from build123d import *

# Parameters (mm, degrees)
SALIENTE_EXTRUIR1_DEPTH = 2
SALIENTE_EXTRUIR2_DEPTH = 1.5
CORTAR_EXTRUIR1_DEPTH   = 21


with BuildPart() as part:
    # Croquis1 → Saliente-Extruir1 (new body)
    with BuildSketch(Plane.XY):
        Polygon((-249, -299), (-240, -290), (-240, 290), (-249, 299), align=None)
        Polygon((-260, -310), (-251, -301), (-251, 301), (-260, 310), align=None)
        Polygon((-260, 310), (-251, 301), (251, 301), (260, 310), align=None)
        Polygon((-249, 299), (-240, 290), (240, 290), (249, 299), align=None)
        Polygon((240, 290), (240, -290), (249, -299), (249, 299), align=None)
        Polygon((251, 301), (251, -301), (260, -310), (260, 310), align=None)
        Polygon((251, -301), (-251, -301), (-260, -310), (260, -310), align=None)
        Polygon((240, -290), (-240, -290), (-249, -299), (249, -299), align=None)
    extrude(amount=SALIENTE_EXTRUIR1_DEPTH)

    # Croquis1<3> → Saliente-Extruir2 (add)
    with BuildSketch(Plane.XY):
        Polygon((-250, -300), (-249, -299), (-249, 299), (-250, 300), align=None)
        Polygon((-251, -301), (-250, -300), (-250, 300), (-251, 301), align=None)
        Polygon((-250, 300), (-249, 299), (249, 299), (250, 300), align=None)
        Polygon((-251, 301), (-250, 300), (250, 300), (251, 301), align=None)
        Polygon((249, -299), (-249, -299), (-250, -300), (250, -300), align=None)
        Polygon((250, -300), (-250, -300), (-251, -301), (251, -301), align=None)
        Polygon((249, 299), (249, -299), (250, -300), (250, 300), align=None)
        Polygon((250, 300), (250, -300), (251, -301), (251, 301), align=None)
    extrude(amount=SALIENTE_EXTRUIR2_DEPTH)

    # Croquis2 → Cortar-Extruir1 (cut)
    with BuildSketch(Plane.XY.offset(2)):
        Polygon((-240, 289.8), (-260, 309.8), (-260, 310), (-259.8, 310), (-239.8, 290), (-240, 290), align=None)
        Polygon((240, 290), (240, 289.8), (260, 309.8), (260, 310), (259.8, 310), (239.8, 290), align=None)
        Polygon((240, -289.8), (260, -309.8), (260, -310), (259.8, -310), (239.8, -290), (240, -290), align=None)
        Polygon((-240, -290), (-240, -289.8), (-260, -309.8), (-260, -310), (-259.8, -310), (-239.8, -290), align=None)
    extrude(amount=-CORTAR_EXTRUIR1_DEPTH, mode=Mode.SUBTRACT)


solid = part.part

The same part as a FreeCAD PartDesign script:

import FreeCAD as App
import Part
import Sketcher

doc = App.newDocument("Part")
body = doc.addObject("PartDesign::Body", "Body")
body.AllowCompound = True

sketch1 = body.newObject("Sketcher::SketchObject", "Sketch")
sketch1.AttachmentSupport = (doc.getObject("XY_Plane"), [""])
sketch1.MapMode = "FlatFace"
sketch1.addGeometry(Part.LineSegment(App.Vector(249, -299, 0), App.Vector(249, 299, 0)), False)
sketch1.addGeometry(Part.LineSegment(App.Vector(249, 299, 0), App.Vector(-249, 299, 0)), False)
sketch1.addGeometry(Part.LineSegment(App.Vector(-249, 299, 0), App.Vector(-249, -299, 0)), False)
sketch1.addGeometry(Part.LineSegment(App.Vector(-249, -299, 0), App.Vector(249, -299, 0)), False)
sketch1.addGeometry(Part.LineSegment(App.Vector(-240, -290, 0), App.Vector(-240, 290, 0)), False)
sketch1.addGeometry(Part.LineSegment(App.Vector(-240, 290, 0), App.Vector(240, 290, 0)), False)
sketch1.addGeometry(Part.LineSegment(App.Vector(240, 290, 0), App.Vector(240, -290, 0)), False)
sketch1.addGeometry(Part.LineSegment(App.Vector(240, -290, 0), App.Vector(-240, -290, 0)), False)
sketch1.addGeometry(Part.LineSegment(App.Vector(260, -310, 0), App.Vector(260, 310, 0)), False)
sketch1.addGeometry(Part.LineSegment(App.Vector(260, 310, 0), App.Vector(-260, 310, 0)), False)
sketch1.addGeometry(Part.LineSegment(App.Vector(-260, 310, 0), App.Vector(-260, -310, 0)), False)
sketch1.addGeometry(Part.LineSegment(App.Vector(-260, -310, 0), App.Vector(260, -310, 0)), False)
sketch1.addGeometry(Part.LineSegment(App.Vector(-251, -301, 0), App.Vector(-251, 301, 0)), False)
sketch1.addGeometry(Part.LineSegment(App.Vector(-251, 301, 0), App.Vector(251, 301, 0)), False)
sketch1.addGeometry(Part.LineSegment(App.Vector(251, 301, 0), App.Vector(251, -301, 0)), False)
sketch1.addGeometry(Part.LineSegment(App.Vector(251, -301, 0), App.Vector(-251, -301, 0)), False)
sketch1.addConstraint(Sketcher.Constraint("Coincident", 0, 2, 1, 1))
sketch1.addConstraint(Sketcher.Constraint("Coincident", 1, 2, 2, 1))
sketch1.addConstraint(Sketcher.Constraint("Coincident", 2, 2, 3, 1))
sketch1.addConstraint(Sketcher.Constraint("Coincident", 3, 2, 0, 1))
sketch1.addConstraint(Sketcher.Constraint("Coincident", 4, 2, 5, 1))
sketch1.addConstraint(Sketcher.Constraint("Coincident", 5, 2, 6, 1))
sketch1.addConstraint(Sketcher.Constraint("Coincident", 6, 2, 7, 1))
sketch1.addConstraint(Sketcher.Constraint("Coincident", 7, 2, 4, 1))
sketch1.addConstraint(Sketcher.Constraint("Coincident", 8, 2, 9, 1))
sketch1.addConstraint(Sketcher.Constraint("Coincident", 9, 2, 10, 1))
sketch1.addConstraint(Sketcher.Constraint("Coincident", 10, 2, 11, 1))
sketch1.addConstraint(Sketcher.Constraint("Coincident", 11, 2, 8, 1))
sketch1.addConstraint(Sketcher.Constraint("Coincident", 12, 2, 13, 1))
sketch1.addConstraint(Sketcher.Constraint("Coincident", 13, 2, 14, 1))
sketch1.addConstraint(Sketcher.Constraint("Coincident", 14, 2, 15, 1))
sketch1.addConstraint(Sketcher.Constraint("Coincident", 15, 2, 12, 1))
sketch1.addConstraint(Sketcher.Constraint("Vertical", 0))
sketch1.addConstraint(Sketcher.Constraint("Horizontal", 1))
sketch1.addConstraint(Sketcher.Constraint("Vertical", 2))
sketch1.addConstraint(Sketcher.Constraint("Horizontal", 3))
sketch1.addConstraint(Sketcher.Constraint("Vertical", 4))
sketch1.addConstraint(Sketcher.Constraint("Horizontal", 5))
sketch1.addConstraint(Sketcher.Constraint("Vertical", 6))
sketch1.addConstraint(Sketcher.Constraint("Horizontal", 7))
sketch1.addConstraint(Sketcher.Constraint("Vertical", 8))
sketch1.addConstraint(Sketcher.Constraint("Horizontal", 9))
sketch1.addConstraint(Sketcher.Constraint("Vertical", 10))
sketch1.addConstraint(Sketcher.Constraint("Horizontal", 11))
sketch1.addConstraint(Sketcher.Constraint("Vertical", 12))
sketch1.addConstraint(Sketcher.Constraint("Horizontal", 13))
sketch1.addConstraint(Sketcher.Constraint("Vertical", 14))
sketch1.addConstraint(Sketcher.Constraint("Horizontal", 15))
sketch1.addConstraint(Sketcher.Constraint("Symmetric", 0, 2, 2, 2, -1, 1))
sketch1.addConstraint(Sketcher.Constraint("Symmetric", 4, 2, 6, 2, -1, 1))
sketch1.addConstraint(Sketcher.Constraint("Symmetric", 8, 2, 10, 2, -1, 1))
sketch1.addConstraint(Sketcher.Constraint("Symmetric", 12, 2, 14, 2, -1, 1))
sketch1.addConstraint(Sketcher.Constraint("DistanceX", 1, 2, 1, 1, 498.0))
sketch1.addConstraint(Sketcher.Constraint("DistanceX", 5, 1, 5, 2, 480.0))
sketch1.addConstraint(Sketcher.Constraint("DistanceX", 9, 2, 9, 1, 520.0))
sketch1.addConstraint(Sketcher.Constraint("DistanceX", 13, 1, 13, 2, 502.0))
sketch1.addConstraint(Sketcher.Constraint("DistanceY", 0, 1, 0, 2, 598.0))
sketch1.addConstraint(Sketcher.Constraint("DistanceY", 4, 1, 4, 2, 580.0))
sketch1.addConstraint(Sketcher.Constraint("DistanceY", 8, 1, 8, 2, 620.0))
sketch1.addConstraint(Sketcher.Constraint("DistanceY", 12, 1, 12, 2, 602.0))
pad1 = body.newObject("PartDesign::Pad", "Pad")
pad1.Profile = sketch1
pad1.Length = 2

sketch2 = body.newObject("Sketcher::SketchObject", "Sketch001")
sketch2.AttachmentSupport = (doc.getObject("XY_Plane"), [""])
sketch2.MapMode = "FlatFace"
sketch2.addGeometry(Part.LineSegment(App.Vector(251, 301, 0), App.Vector(-251, 301, 0)), False)
sketch2.addGeometry(Part.LineSegment(App.Vector(-251, 301, 0), App.Vector(-251, -301, 0)), False)
sketch2.addGeometry(Part.LineSegment(App.Vector(-251, -301, 0), App.Vector(251, -301, 0)), False)
sketch2.addGeometry(Part.LineSegment(App.Vector(251, -301, 0), App.Vector(251, 301, 0)), False)
sketch2.addGeometry(Part.LineSegment(App.Vector(-249, -299, 0), App.Vector(-249, 299, 0)), False)
sketch2.addGeometry(Part.LineSegment(App.Vector(-249, 299, 0), App.Vector(249, 299, 0)), False)
sketch2.addGeometry(Part.LineSegment(App.Vector(249, 299, 0), App.Vector(249, -299, 0)), False)
sketch2.addGeometry(Part.LineSegment(App.Vector(249, -299, 0), App.Vector(-249, -299, 0)), False)
sketch2.addConstraint(Sketcher.Constraint("Coincident", 0, 2, 1, 1))
sketch2.addConstraint(Sketcher.Constraint("Coincident", 1, 2, 2, 1))
sketch2.addConstraint(Sketcher.Constraint("Coincident", 2, 2, 3, 1))
sketch2.addConstraint(Sketcher.Constraint("Coincident", 3, 2, 0, 1))
sketch2.addConstraint(Sketcher.Constraint("Coincident", 4, 2, 5, 1))
sketch2.addConstraint(Sketcher.Constraint("Coincident", 5, 2, 6, 1))
sketch2.addConstraint(Sketcher.Constraint("Coincident", 6, 2, 7, 1))
sketch2.addConstraint(Sketcher.Constraint("Coincident", 7, 2, 4, 1))
sketch2.addConstraint(Sketcher.Constraint("Horizontal", 0))
sketch2.addConstraint(Sketcher.Constraint("Vertical", 1))
sketch2.addConstraint(Sketcher.Constraint("Horizontal", 2))
sketch2.addConstraint(Sketcher.Constraint("Vertical", 3))
sketch2.addConstraint(Sketcher.Constraint("Vertical", 4))
sketch2.addConstraint(Sketcher.Constraint("Horizontal", 5))
sketch2.addConstraint(Sketcher.Constraint("Vertical", 6))
sketch2.addConstraint(Sketcher.Constraint("Horizontal", 7))
sketch2.addConstraint(Sketcher.Constraint("Symmetric", 0, 2, 2, 2, -1, 1))
sketch2.addConstraint(Sketcher.Constraint("Symmetric", 4, 2, 6, 2, -1, 1))
sketch2.addConstraint(Sketcher.Constraint("DistanceX", 0, 2, 0, 1, 502.0))
sketch2.addConstraint(Sketcher.Constraint("DistanceX", 5, 1, 5, 2, 498.0))
sketch2.addConstraint(Sketcher.Constraint("DistanceY", 1, 2, 1, 1, 602.0))
sketch2.addConstraint(Sketcher.Constraint("DistanceY", 4, 1, 4, 2, 598.0))
pad2 = body.newObject("PartDesign::Pad", "Pad001")
pad2.Profile = sketch2
pad2.Length = 1.5

sketch3 = body.newObject("Sketcher::SketchObject", "Sketch002")
sketch3.AttachmentSupport = (doc.getObject("XY_Plane"), [""])
sketch3.MapMode = "FlatFace"
sketch3.AttachmentOffset = App.Placement(App.Vector(0, 0, 2), App.Rotation())
sketch3.addGeometry(Part.LineSegment(App.Vector(-260, 309.8, 0), App.Vector(-240, 289.8, 0)), False)
sketch3.addGeometry(Part.LineSegment(App.Vector(-240, 289.8, 0), App.Vector(-240, 290, 0)), False)
sketch3.addGeometry(Part.LineSegment(App.Vector(-240, 290, 0), App.Vector(-239.8, 290, 0)), False)
sketch3.addGeometry(Part.LineSegment(App.Vector(-239.8, 290, 0), App.Vector(-259.8, 310, 0)), False)
sketch3.addGeometry(Part.LineSegment(App.Vector(-259.8, 310, 0), App.Vector(-260, 310, 0)), False)
sketch3.addGeometry(Part.LineSegment(App.Vector(-260, 310, 0), App.Vector(-260, 309.8, 0)), False)
sketch3.addGeometry(Part.LineSegment(App.Vector(240, 290, 0), App.Vector(240, 289.8, 0)), False)
sketch3.addGeometry(Part.LineSegment(App.Vector(240, 289.8, 0), App.Vector(260, 309.8, 0)), False)
sketch3.addGeometry(Part.LineSegment(App.Vector(260, 309.8, 0), App.Vector(260, 310, 0)), False)
sketch3.addGeometry(Part.LineSegment(App.Vector(260, 310, 0), App.Vector(259.8, 310, 0)), False)
sketch3.addGeometry(Part.LineSegment(App.Vector(259.8, 310, 0), App.Vector(239.8, 290, 0)), False)
sketch3.addGeometry(Part.LineSegment(App.Vector(239.8, 290, 0), App.Vector(240, 290, 0)), False)
sketch3.addGeometry(Part.LineSegment(App.Vector(260, -309.8, 0), App.Vector(240, -289.8, 0)), False)
sketch3.addGeometry(Part.LineSegment(App.Vector(240, -289.8, 0), App.Vector(240, -290, 0)), False)
sketch3.addGeometry(Part.LineSegment(App.Vector(240, -290, 0), App.Vector(239.8, -290, 0)), False)
sketch3.addGeometry(Part.LineSegment(App.Vector(239.8, -290, 0), App.Vector(259.8, -310, 0)), False)
sketch3.addGeometry(Part.LineSegment(App.Vector(259.8, -310, 0), App.Vector(260, -310, 0)), False)
sketch3.addGeometry(Part.LineSegment(App.Vector(260, -310, 0), App.Vector(260, -309.8, 0)), False)
sketch3.addGeometry(Part.LineSegment(App.Vector(-240, -290, 0), App.Vector(-240, -289.8, 0)), False)
sketch3.addGeometry(Part.LineSegment(App.Vector(-240, -289.8, 0), App.Vector(-260, -309.8, 0)), False)
sketch3.addGeometry(Part.LineSegment(App.Vector(-260, -309.8, 0), App.Vector(-260, -310, 0)), False)
sketch3.addGeometry(Part.LineSegment(App.Vector(-260, -310, 0), App.Vector(-259.8, -310, 0)), False)
sketch3.addGeometry(Part.LineSegment(App.Vector(-259.8, -310, 0), App.Vector(-239.8, -290, 0)), False)
sketch3.addGeometry(Part.LineSegment(App.Vector(-239.8, -290, 0), App.Vector(-240, -290, 0)), False)
sketch3.addConstraint(Sketcher.Constraint("Coincident", 0, 2, 1, 1))
sketch3.addConstraint(Sketcher.Constraint("Coincident", 1, 2, 2, 1))
sketch3.addConstraint(Sketcher.Constraint("Coincident", 2, 2, 3, 1))
sketch3.addConstraint(Sketcher.Constraint("Coincident", 3, 2, 4, 1))
sketch3.addConstraint(Sketcher.Constraint("Coincident", 4, 2, 5, 1))
sketch3.addConstraint(Sketcher.Constraint("Coincident", 5, 2, 0, 1))
sketch3.addConstraint(Sketcher.Constraint("Coincident", 6, 2, 7, 1))
sketch3.addConstraint(Sketcher.Constraint("Coincident", 7, 2, 8, 1))
sketch3.addConstraint(Sketcher.Constraint("Coincident", 8, 2, 9, 1))
sketch3.addConstraint(Sketcher.Constraint("Coincident", 9, 2, 10, 1))
sketch3.addConstraint(Sketcher.Constraint("Coincident", 10, 2, 11, 1))
sketch3.addConstraint(Sketcher.Constraint("Coincident", 11, 2, 6, 1))
sketch3.addConstraint(Sketcher.Constraint("Coincident", 12, 2, 13, 1))
sketch3.addConstraint(Sketcher.Constraint("Coincident", 13, 2, 14, 1))
sketch3.addConstraint(Sketcher.Constraint("Coincident", 14, 2, 15, 1))
sketch3.addConstraint(Sketcher.Constraint("Coincident", 15, 2, 16, 1))
sketch3.addConstraint(Sketcher.Constraint("Coincident", 16, 2, 17, 1))
sketch3.addConstraint(Sketcher.Constraint("Coincident", 17, 2, 12, 1))
sketch3.addConstraint(Sketcher.Constraint("Coincident", 18, 2, 19, 1))
sketch3.addConstraint(Sketcher.Constraint("Coincident", 19, 2, 20, 1))
sketch3.addConstraint(Sketcher.Constraint("Coincident", 20, 2, 21, 1))
sketch3.addConstraint(Sketcher.Constraint("Coincident", 21, 2, 22, 1))
sketch3.addConstraint(Sketcher.Constraint("Coincident", 22, 2, 23, 1))
sketch3.addConstraint(Sketcher.Constraint("Coincident", 23, 2, 18, 1))
sketch3.addConstraint(Sketcher.Constraint("Vertical", 1))
sketch3.addConstraint(Sketcher.Constraint("Horizontal", 2))
sketch3.addConstraint(Sketcher.Constraint("Horizontal", 4))
sketch3.addConstraint(Sketcher.Constraint("Vertical", 5))
sketch3.addConstraint(Sketcher.Constraint("Vertical", 6))
sketch3.addConstraint(Sketcher.Constraint("Vertical", 8))
sketch3.addConstraint(Sketcher.Constraint("Horizontal", 9))
sketch3.addConstraint(Sketcher.Constraint("Horizontal", 11))
sketch3.addConstraint(Sketcher.Constraint("Vertical", 13))
sketch3.addConstraint(Sketcher.Constraint("Horizontal", 14))
sketch3.addConstraint(Sketcher.Constraint("Horizontal", 16))
sketch3.addConstraint(Sketcher.Constraint("Vertical", 17))
sketch3.addConstraint(Sketcher.Constraint("Vertical", 18))
sketch3.addConstraint(Sketcher.Constraint("Vertical", 20))
sketch3.addConstraint(Sketcher.Constraint("Horizontal", 21))
sketch3.addConstraint(Sketcher.Constraint("Horizontal", 23))
sketch3.addConstraint(Sketcher.Constraint("Symmetric", 0, 2, 12, 2, -1, 1))
sketch3.addConstraint(Sketcher.Constraint("Symmetric", 2, 2, 14, 2, -1, 1))
sketch3.addConstraint(Sketcher.Constraint("Symmetric", 3, 2, 15, 2, -1, 1))
sketch3.addConstraint(Sketcher.Constraint("Symmetric", 5, 2, 17, 2, -1, 1))
sketch3.addConstraint(Sketcher.Constraint("Symmetric", 6, 2, 18, 2, -1, 1))
sketch3.addConstraint(Sketcher.Constraint("Symmetric", 7, 2, 19, 2, -1, 1))
sketch3.addConstraint(Sketcher.Constraint("Symmetric", 9, 2, 21, 2, -1, 1))
sketch3.addConstraint(Sketcher.Constraint("Symmetric", 10, 2, 22, 2, -1, 1))
sketch3.addConstraint(Sketcher.Constraint("Symmetric", 0, 2, 6, 2, -2))
sketch3.addConstraint(Sketcher.Constraint("Symmetric", 5, 2, 7, 2, -2))
sketch3.addConstraint(Sketcher.Constraint("Symmetric", 3, 2, 9, 2, -2))
sketch3.addConstraint(Sketcher.Constraint("Symmetric", 2, 2, 10, 2, -2))
sketch3.addConstraint(Sketcher.Constraint("Parallel", 0, 3))
sketch3.addConstraint(Sketcher.Constraint("Perpendicular", 3, 7))
sketch3.addConstraint(Sketcher.Constraint("Equal", 2, 4))
sketch3.addConstraint(Sketcher.Constraint("Equal", 23, 1))
sketch3.addConstraint(Sketcher.Constraint("DistanceX", 2, 1, 2, 2, 0.2))
sketch3.addConstraint(Sketcher.Constraint("DistanceX", 0, 2, -1, 1, 240.0))
sketch3.addConstraint(Sketcher.Constraint("DistanceY", -1, 1, 1, 2, 290.0))
sketch3.addConstraint(Sketcher.Constraint("DistanceY", -1, 1, 3, 2, 310.0))
pocket1 = body.newObject("PartDesign::Pocket", "Pocket")
pocket1.Profile = sketch3
pocket1.Length = 21

doc.recompute()
